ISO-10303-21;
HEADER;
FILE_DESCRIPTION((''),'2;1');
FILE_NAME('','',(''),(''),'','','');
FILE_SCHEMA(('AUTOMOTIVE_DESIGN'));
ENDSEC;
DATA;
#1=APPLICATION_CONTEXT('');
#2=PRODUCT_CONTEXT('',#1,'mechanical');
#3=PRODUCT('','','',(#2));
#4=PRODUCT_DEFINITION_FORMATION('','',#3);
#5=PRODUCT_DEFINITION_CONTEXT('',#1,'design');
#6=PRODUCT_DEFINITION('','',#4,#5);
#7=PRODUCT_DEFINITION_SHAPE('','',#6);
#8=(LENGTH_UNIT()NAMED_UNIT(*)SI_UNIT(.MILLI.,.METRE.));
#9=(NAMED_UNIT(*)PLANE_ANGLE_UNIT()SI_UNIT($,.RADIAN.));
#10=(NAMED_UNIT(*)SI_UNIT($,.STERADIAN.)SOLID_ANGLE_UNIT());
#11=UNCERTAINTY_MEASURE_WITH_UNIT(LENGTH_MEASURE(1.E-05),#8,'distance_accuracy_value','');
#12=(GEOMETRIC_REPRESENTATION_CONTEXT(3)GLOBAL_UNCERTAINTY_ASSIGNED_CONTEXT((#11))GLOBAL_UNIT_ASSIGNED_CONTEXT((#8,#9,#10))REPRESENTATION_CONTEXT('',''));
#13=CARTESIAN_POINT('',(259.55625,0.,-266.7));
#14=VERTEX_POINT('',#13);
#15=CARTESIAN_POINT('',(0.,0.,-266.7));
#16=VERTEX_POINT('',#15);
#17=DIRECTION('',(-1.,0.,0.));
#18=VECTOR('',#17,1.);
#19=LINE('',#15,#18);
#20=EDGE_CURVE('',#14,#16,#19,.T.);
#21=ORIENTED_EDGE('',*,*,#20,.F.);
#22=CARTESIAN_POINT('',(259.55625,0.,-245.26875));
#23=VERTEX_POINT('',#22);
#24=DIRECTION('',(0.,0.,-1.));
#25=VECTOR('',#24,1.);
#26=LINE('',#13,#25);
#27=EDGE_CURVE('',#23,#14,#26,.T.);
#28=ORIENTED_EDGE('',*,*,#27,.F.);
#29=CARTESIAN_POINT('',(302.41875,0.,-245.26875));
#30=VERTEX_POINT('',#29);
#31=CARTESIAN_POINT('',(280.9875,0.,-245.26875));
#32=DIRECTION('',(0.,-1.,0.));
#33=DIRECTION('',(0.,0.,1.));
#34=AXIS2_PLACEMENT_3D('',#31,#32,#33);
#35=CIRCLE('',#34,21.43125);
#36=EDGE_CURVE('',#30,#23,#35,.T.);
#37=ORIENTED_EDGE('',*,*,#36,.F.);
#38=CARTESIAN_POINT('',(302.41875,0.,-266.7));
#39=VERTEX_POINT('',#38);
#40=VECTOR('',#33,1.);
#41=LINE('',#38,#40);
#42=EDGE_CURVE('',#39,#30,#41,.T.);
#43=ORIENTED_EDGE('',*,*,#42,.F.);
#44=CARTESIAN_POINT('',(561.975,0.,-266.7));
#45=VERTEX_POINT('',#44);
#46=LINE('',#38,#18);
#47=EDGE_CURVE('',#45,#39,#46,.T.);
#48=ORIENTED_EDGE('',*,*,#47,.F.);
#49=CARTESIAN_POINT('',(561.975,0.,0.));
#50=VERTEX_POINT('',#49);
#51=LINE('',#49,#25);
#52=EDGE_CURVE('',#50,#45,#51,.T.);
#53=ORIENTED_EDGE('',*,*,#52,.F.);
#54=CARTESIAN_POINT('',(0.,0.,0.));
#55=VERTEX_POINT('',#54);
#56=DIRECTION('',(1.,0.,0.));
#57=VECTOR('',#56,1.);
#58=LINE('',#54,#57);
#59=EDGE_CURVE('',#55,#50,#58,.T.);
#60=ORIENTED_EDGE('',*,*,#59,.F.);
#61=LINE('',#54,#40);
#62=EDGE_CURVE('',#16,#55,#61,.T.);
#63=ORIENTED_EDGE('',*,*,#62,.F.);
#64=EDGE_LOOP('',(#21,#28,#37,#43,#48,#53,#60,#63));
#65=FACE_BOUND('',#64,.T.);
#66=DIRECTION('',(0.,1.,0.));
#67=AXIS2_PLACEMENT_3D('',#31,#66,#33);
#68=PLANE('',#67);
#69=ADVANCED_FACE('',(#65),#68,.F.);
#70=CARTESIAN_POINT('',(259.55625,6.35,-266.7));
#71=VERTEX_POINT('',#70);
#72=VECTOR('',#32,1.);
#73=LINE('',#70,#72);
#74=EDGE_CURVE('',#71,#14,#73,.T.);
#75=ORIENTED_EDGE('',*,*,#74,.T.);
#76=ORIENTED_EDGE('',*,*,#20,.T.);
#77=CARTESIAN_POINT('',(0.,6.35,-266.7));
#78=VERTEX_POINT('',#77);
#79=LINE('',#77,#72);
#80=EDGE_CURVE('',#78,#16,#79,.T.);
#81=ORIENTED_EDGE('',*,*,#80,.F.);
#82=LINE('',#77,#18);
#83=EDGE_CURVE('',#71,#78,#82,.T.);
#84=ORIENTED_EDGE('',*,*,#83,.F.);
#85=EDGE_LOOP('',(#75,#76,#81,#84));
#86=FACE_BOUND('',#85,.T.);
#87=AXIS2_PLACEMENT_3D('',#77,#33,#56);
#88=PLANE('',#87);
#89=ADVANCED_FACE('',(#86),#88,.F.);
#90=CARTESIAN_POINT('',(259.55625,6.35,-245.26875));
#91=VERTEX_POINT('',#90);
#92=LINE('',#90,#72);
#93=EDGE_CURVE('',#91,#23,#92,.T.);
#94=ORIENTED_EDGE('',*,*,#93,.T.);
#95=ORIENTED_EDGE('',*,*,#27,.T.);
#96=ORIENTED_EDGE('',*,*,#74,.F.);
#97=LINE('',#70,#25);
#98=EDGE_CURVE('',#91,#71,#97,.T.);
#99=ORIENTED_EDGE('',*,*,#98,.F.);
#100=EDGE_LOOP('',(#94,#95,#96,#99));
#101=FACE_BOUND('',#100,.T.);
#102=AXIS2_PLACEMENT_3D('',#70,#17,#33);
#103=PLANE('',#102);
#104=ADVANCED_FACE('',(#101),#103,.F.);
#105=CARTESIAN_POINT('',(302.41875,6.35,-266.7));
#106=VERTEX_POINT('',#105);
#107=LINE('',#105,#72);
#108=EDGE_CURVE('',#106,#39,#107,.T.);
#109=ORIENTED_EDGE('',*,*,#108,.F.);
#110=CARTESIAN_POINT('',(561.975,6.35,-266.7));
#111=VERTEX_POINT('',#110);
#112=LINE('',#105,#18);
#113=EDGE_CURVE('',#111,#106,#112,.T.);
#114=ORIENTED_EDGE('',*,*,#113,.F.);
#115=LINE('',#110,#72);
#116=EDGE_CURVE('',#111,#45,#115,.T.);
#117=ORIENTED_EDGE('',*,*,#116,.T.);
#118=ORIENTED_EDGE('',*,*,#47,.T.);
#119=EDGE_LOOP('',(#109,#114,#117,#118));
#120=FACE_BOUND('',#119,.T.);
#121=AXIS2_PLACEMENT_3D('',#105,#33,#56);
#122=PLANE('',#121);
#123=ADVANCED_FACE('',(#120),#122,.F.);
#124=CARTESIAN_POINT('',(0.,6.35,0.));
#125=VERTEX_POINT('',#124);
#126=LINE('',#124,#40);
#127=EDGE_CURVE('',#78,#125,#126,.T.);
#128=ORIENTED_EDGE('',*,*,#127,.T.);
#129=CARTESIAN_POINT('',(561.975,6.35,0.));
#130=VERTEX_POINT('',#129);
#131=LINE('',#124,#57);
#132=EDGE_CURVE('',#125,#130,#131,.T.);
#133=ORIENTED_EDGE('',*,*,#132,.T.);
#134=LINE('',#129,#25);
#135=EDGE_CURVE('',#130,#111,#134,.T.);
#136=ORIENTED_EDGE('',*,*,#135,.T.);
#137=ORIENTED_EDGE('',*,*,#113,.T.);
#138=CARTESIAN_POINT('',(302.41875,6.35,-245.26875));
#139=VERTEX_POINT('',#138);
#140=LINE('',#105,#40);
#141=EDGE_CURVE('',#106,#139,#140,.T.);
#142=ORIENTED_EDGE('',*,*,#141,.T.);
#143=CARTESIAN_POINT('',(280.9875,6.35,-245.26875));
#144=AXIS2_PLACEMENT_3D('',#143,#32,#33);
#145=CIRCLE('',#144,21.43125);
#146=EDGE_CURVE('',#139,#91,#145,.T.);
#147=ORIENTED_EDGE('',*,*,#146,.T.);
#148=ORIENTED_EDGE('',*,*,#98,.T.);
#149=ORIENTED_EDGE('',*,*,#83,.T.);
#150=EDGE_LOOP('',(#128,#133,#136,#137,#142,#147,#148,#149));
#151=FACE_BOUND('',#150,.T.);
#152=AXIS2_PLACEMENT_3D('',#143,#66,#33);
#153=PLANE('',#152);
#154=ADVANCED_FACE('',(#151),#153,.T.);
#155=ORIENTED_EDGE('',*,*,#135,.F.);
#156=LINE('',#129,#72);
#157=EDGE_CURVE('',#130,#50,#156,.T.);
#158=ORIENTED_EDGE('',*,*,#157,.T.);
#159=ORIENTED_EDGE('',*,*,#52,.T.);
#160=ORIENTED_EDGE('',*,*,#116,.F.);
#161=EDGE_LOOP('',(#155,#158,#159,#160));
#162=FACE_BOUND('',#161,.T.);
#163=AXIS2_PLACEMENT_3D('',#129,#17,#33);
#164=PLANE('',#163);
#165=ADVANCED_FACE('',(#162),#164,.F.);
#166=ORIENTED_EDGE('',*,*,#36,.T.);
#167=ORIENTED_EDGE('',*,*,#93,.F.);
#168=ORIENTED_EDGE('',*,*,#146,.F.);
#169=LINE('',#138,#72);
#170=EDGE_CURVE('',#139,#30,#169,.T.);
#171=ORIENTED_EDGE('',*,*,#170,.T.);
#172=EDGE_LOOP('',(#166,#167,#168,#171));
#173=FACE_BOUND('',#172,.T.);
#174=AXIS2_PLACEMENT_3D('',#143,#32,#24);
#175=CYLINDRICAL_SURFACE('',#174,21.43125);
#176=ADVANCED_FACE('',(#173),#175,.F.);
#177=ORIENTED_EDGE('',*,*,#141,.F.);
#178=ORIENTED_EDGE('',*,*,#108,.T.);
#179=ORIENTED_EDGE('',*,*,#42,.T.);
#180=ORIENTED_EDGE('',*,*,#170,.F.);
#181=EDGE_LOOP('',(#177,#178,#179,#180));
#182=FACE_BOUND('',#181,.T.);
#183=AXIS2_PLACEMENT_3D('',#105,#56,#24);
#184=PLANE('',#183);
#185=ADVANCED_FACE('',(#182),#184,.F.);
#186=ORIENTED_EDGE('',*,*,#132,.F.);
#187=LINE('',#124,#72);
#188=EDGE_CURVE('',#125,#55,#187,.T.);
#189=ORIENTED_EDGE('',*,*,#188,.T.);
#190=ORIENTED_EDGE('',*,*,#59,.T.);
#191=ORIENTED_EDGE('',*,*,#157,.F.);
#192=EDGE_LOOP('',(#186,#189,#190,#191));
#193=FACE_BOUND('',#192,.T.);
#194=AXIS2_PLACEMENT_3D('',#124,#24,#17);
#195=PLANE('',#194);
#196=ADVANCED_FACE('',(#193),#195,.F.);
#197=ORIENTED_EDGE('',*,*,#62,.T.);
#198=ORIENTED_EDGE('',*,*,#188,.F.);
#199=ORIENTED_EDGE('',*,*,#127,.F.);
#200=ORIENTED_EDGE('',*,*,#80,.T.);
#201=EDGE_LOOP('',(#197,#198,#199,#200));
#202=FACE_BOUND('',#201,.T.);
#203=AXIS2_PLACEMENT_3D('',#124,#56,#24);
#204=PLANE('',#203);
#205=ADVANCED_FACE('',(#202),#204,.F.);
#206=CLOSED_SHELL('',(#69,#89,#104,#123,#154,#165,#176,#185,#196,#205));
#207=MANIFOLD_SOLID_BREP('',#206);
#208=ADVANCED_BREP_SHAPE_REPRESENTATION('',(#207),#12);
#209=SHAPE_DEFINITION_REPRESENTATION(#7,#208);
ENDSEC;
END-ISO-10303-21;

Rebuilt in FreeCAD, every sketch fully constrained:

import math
import FreeCAD as App
import Part
import Sketcher
from FreeCAD import Vector
Q = App.Units.Quantity

doc = App.newDocument("Part")
body = doc.addObject("PartDesign::Body", "Body")

# Sketch on XZ plane
sketch1 = body.newObject("Sketcher::SketchObject", "Sketch")
sketch1.AttachmentSupport = (doc.getObject("XZ_Plane"), [""])
sketch1.MapMode = "FlatFace"
sketch1.addGeometry(Part.LineSegment(Vector(562, -267, 0), Vector(302, -267, 0)), False)
sketch1.addGeometry(Part.LineSegment(Vector(302, -267, 0), Vector(302, -245, 0)), False)
sketch1.addGeometry(Part.ArcOfCircle(Part.Circle(Vector(281, -245, 0), Vector(0, 0, 1), 21), math.radians(0), math.radians(180)), False)
sketch1.addGeometry(Part.LineSegment(Vector(260, -245, 0), Vector(260, -267, 0)), False)
sketch1.addGeometry(Part.LineSegment(Vector(260, -267, 0), Vector(0, -267, 0)), False)
sketch1.addGeometry(Part.LineSegment(Vector(0, -267, 0), Vector(0, 0, 0)), False)
sketch1.addGeometry(Part.LineSegment(Vector(0, 0, 0), Vector(562, 0, 0)), False)
sketch1.addGeometry(Part.LineSegment(Vector(562, 0, 0), Vector(562, -267, 0)), False)
sketch1.addConstraint(Sketcher.Constraint("Coincident", 0, 2, 1, 1))
sketch1.addConstraint(Sketcher.Constraint("Tangent", 1, 2, 2, 1))
sketch1.addConstraint(Sketcher.Constraint("Tangent", 2, 2, 3, 1))
sketch1.addConstraint(Sketcher.Constraint("Coincident", 3, 2, 4, 1))
sketch1.addConstraint(Sketcher.Constraint("Coincident", 4, 2, 5, 1))
sketch1.addConstraint(Sketcher.Constraint("Coincident", 5, 2, 6, 1))
sketch1.addConstraint(Sketcher.Constraint("Coincident", 6, 2, 7, 1))
sketch1.addConstraint(Sketcher.Constraint("Coincident", 7, 2, 0, 1))
sketch1.addConstraint(Sketcher.Constraint("Horizontal", 0))
sketch1.addConstraint(Sketcher.Constraint("Vertical", 1))
sketch1.addConstraint(Sketcher.Constraint("Vertical", 3))
sketch1.addConstraint(Sketcher.Constraint("Horizontal", 4))
sketch1.addConstraint(Sketcher.Constraint("Vertical", 5))
sketch1.addConstraint(Sketcher.Constraint("Horizontal", 6))
sketch1.addConstraint(Sketcher.Constraint("Vertical", 7))
sketch1.addConstraint(Sketcher.Constraint("Coincident", 5, 2, -1, 1))
sketch1.addConstraint(Sketcher.Constraint("Horizontal", 0, 2, 3, 2))
sketch1.addConstraint(Sketcher.Constraint("Equal", 0, 4))
sketch1.addConstraint(Sketcher.Constraint("DistanceY", 5, 1, 5, 2, Q("10.5 in")))
sketch1.addConstraint(Sketcher.Constraint("Radius", 2, Q("0.84375 in")))
sketch1.addConstraint(Sketcher.Constraint("DistanceX", 0, 2, 0, 1, Q("10.21875 in")))
sketch1.addConstraint(Sketcher.Constraint("DistanceY", 1, 1, 1, 2, Q("0.84375 in")))
pad1 = body.newObject("PartDesign::Pad", "Pad")
pad1.Profile = sketch1
pad1.Length = Q("0.25 in")
pad1.Reversed = True

doc.recompute()
